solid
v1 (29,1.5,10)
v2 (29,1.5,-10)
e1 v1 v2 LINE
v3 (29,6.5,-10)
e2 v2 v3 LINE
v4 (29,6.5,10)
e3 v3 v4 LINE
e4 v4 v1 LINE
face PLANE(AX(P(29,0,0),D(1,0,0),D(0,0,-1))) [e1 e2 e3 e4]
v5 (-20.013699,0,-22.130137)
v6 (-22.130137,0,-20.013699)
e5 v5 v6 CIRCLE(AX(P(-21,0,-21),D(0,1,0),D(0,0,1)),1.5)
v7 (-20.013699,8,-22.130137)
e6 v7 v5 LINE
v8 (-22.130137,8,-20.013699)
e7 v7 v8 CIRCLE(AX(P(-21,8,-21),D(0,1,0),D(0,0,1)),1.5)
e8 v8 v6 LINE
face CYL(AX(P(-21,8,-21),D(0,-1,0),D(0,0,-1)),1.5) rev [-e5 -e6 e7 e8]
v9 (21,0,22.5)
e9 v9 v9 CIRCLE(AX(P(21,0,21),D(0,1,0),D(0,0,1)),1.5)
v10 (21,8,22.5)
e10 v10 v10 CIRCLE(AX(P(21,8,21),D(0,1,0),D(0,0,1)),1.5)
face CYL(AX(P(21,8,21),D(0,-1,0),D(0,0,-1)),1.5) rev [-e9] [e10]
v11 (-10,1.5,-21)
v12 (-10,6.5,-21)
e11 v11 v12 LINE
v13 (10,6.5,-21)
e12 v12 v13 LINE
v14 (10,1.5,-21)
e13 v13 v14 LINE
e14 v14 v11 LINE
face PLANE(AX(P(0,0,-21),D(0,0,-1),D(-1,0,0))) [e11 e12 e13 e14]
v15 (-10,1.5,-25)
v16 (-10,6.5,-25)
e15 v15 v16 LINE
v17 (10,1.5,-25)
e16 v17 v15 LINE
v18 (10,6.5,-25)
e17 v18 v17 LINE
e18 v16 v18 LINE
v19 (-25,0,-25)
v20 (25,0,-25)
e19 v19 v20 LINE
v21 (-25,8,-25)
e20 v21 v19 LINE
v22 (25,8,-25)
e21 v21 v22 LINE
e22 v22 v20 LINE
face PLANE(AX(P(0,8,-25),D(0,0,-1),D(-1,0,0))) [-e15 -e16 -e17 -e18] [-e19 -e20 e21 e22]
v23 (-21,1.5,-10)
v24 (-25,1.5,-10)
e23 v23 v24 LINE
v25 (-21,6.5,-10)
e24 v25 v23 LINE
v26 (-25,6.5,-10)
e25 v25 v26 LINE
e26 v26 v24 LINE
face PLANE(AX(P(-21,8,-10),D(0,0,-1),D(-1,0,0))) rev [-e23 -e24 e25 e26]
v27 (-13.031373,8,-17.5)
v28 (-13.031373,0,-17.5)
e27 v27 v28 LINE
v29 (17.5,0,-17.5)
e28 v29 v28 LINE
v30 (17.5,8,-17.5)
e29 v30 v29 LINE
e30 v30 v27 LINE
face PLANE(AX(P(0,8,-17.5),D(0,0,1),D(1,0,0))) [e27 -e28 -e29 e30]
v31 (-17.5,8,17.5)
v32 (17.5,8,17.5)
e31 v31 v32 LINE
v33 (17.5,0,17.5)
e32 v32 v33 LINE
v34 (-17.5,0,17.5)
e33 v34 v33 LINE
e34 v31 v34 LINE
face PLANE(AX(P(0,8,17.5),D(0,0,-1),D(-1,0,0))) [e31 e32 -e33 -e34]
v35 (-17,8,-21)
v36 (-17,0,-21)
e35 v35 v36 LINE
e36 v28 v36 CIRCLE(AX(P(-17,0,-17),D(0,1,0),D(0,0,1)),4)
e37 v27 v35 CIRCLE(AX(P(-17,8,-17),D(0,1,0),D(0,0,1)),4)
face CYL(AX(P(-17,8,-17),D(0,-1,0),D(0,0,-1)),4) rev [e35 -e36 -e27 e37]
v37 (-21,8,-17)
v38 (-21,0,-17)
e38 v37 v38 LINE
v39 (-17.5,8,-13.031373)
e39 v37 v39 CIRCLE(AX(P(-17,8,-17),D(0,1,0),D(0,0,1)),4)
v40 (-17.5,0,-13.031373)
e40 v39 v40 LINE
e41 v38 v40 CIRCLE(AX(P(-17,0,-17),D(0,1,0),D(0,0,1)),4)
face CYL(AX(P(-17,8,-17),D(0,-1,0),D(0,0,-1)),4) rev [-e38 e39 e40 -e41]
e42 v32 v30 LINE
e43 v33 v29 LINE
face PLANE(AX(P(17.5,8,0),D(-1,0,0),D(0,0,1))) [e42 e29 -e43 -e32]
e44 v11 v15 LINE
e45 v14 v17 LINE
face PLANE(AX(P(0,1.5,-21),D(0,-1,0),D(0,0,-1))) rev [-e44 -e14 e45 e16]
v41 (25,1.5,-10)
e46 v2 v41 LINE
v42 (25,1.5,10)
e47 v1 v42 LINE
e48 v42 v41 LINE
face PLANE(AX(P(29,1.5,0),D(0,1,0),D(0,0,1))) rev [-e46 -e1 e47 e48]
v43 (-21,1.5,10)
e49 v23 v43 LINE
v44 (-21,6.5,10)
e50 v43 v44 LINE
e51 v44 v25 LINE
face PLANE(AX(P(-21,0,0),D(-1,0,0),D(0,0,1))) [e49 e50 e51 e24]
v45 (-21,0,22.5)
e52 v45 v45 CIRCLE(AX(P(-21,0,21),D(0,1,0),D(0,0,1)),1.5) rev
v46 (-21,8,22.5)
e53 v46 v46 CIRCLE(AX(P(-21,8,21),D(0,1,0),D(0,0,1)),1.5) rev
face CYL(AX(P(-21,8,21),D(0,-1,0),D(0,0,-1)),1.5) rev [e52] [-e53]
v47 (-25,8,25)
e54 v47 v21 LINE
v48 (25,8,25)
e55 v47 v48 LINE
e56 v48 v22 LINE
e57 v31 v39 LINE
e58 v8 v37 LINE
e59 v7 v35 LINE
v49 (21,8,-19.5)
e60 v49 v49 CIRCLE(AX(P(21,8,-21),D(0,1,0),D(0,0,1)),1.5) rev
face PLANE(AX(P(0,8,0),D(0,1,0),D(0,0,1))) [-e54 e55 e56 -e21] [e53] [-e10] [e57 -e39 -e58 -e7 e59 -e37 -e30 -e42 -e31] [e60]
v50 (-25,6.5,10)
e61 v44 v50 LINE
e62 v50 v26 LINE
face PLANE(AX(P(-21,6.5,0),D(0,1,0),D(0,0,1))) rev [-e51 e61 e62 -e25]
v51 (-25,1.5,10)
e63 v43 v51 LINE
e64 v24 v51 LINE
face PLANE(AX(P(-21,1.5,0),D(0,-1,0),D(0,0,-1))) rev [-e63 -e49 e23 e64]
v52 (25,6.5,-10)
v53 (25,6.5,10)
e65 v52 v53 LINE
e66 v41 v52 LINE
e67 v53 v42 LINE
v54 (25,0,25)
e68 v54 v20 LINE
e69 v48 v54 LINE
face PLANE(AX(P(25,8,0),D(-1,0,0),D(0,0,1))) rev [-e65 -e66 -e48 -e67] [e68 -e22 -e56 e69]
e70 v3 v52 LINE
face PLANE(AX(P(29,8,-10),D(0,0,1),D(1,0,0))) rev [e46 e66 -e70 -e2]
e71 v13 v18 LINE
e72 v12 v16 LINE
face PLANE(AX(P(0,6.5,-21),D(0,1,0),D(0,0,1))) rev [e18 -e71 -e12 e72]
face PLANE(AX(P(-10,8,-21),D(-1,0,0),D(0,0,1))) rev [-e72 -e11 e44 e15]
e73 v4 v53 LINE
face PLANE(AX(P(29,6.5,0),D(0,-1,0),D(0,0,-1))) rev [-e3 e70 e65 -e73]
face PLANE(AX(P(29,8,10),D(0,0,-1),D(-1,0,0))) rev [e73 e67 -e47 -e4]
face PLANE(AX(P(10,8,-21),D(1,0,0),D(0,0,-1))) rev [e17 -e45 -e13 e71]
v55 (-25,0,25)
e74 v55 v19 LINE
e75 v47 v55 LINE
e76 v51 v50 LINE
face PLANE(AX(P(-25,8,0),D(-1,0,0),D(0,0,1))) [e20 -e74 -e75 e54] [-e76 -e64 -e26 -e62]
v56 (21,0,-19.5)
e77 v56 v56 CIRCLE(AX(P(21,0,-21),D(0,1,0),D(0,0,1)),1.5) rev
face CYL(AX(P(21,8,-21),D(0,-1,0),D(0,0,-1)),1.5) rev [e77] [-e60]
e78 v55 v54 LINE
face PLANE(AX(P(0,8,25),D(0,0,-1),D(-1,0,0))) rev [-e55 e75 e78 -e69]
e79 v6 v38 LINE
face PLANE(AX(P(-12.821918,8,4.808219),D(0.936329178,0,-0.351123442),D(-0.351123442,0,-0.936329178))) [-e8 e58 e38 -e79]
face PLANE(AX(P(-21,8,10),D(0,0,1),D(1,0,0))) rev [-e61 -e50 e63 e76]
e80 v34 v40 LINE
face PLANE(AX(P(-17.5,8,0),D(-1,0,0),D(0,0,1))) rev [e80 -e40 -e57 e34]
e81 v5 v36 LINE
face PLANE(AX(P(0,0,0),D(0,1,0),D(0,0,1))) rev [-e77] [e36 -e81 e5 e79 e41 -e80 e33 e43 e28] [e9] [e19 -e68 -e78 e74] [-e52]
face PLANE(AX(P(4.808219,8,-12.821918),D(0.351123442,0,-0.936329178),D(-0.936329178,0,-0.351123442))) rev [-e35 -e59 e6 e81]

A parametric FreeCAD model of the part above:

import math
import FreeCAD as App
import Part
import Sketcher


def add_polygon(sketch, points):
    """Adds a closed chain of lines whose ends are joined by coincident constraints."""
    first, n = sketch.GeometryCount, len(points)
    for a, b in zip(points, points[1:] + points[:1]):
        sketch.addGeometry(Part.LineSegment(App.Vector(*a, 0), App.Vector(*b, 0)), False)
    for i in range(n):
        sketch.addConstraint(Sketcher.Constraint("Coincident", first + i, 2, first + (i + 1) % n, 1))

doc = App.newDocument("Part")
params = doc.addObject("Spreadsheet::Sheet", "Params")
for row, (alias, value) in enumerate([
    ("sketch1_diameter", "3 mm"),
    ("sketch1_radius", "4 mm"),
    ("sketch1_width", "50 mm"),
    ("sketch1_width2", "35 mm"),
    ("pad1_length", "8 mm"),
    ("sketch2_width", "20 mm"),
    ("sketch2_height", "5 mm"),
    ("pocket1_length", "4 mm"),
    ("sketch3_width", "5 mm"),
    ("sketch3_height", "20 mm"),
    ("pocket2_length", "4 mm"),
    ("sketch4_width", "5 mm"),
    ("sketch4_height", "20 mm"),
    ("pad2_length", "4 mm"),
], start=1):
    params.set(f"A{row}", alias)
    params.set(f"B{row}", "=" + value)
    params.setAlias(f"B{row}", alias)

body = doc.addObject("PartDesign::Body", "Body")

sketch1 = doc.addObject("Sketcher::SketchObject", "Sketch")
body.addObject(sketch1)
sketch1.AttachmentSupport = (doc.XZ_Plane, [""])
sketch1.MapMode = "FlatFace"
add_polygon(sketch1, [(-25, -25), (-25, 25), (25, 25), (25, -25)])
sketch1.addGeometry(Part.Circle(App.Vector(-21, 21, 0), App.Vector(0, 0, 1), 1.5), False)
sketch1.addGeometry(Part.Circle(App.Vector(21, 21, 0), App.Vector(0, 0, 1), 1.5), False)
sketch1.addGeometry(Part.ArcOfCircle(Part.Circle(App.Vector(-17, -17, 0), App.Vector(0, 0, 1), 4), math.radians(-90), math.radians(-7)), False)
sketch1.addGeometry(Part.LineSegment(App.Vector(-13, -17.5, 0), App.Vector(17.5, -17.5, 0)), False)
sketch1.addGeometry(Part.LineSegment(App.Vector(17.5, -17.5, 0), App.Vector(17.5, 17.5, 0)), False)
sketch1.addGeometry(Part.LineSegment(App.Vector(17.5, 17.5, 0), App.Vector(-17.5, 17.5, 0)), False)
sketch1.addGeometry(Part.LineSegment(App.Vector(-17.5, 17.5, 0), App.Vector(-17.5, -13, 0)), False)
sketch1.addGeometry(Part.ArcOfCircle(Part.Circle(App.Vector(-17, -17, 0), App.Vector(0, 0, 1), 4), math.radians(97), math.radians(180)), False)
sketch1.addGeometry(Part.LineSegment(App.Vector(-21, -17, 0), App.Vector(-22.1, -20, 0)), False)
sketch1.addGeometry(Part.ArcOfCircle(Part.Circle(App.Vector(-21, -21, 0), App.Vector(0, 0, 1), 1.5), math.radians(139), math.radians(311)), False)
sketch1.addGeometry(Part.LineSegment(App.Vector(-20, -22.1, 0), App.Vector(-17, -21, 0)), False)
sketch1.addGeometry(Part.Circle(App.Vector(21, -21, 0), App.Vector(0, 0, 1), 1.5), False)
sketch1.addConstraint(Sketcher.Constraint("Coincident", 6, 2, 7, 1))
sketch1.addConstraint(Sketcher.Constraint("Coincident", 7, 2, 8, 1))
sketch1.addConstraint(Sketcher.Constraint("Coincident", 8, 2, 9, 1))
sketch1.addConstraint(Sketcher.Constraint("Coincident", 9, 2, 10, 1))
sketch1.addConstraint(Sketcher.Constraint("Coincident", 10, 2, 11, 1))
sketch1.addConstraint(Sketcher.Constraint("Coincident", 11, 2, 12, 1))
sketch1.addConstraint(Sketcher.Constraint("Coincident", 12, 2, 13, 1))
sketch1.addConstraint(Sketcher.Constraint("Coincident", 13, 2, 14, 1))
sketch1.addConstraint(Sketcher.Constraint("Coincident", 14, 2, 6, 1))
sketch1.addConstraint(Sketcher.Constraint("Vertical", 0))
sketch1.addConstraint(Sketcher.Constraint("Horizontal", 1))
sketch1.addConstraint(Sketcher.Constraint("Vertical", 2))
sketch1.addConstraint(Sketcher.Constraint("Horizontal", 3))
sketch1.addConstraint(Sketcher.Constraint("Horizontal", 7))
sketch1.addConstraint(Sketcher.Constraint("Vertical", 8))
sketch1.addConstraint(Sketcher.Constraint("Horizontal", 9))
sketch1.addConstraint(Sketcher.Constraint("Vertical", 10))
sketch1.addConstraint(Sketcher.Constraint("Coincident", 11, 3, 6, 3))
sketch1.addConstraint(Sketcher.Constraint("Equal", 4, 5))
sketch1.addConstraint(Sketcher.Constraint("Equal", 6, 11))
sketch1.addConstraint(Sketcher.Constraint("Equal", 5, 13))
sketch1.addConstraint(Sketcher.Constraint("Equal", 13, 15))
sketch1.addConstraint(Sketcher.Constraint("Symmetric", 5, 3, 13, 3, -1, 1))
sketch1.addConstraint(Sketcher.Constraint("Symmetric", 4, 3, 15, 3, -1, 1))
sketch1.addConstraint(Sketcher.Constraint("Symmetric", 0, 2, 2, 2, -1, 1))
sketch1.addConstraint(Sketcher.Constraint("Symmetric", 7, 2, 9, 2, -1, 1))
sketch1.addConstraint(Sketcher.Constraint("Symmetric", 4, 3, 5, 3, -2))
sketch1.addConstraint(Sketcher.Constraint("Horizontal", 6, 3, 11, 2))
sketch1.addConstraint(Sketcher.Constraint("Horizontal", 15, 3, 14, 2))
sketch1.addConstraint(Sketcher.Constraint("Vertical", 13, 3, 11, 2))
sketch1.addConstraint(Sketcher.Constraint("Vertical", 11, 3, 14, 2))
sketch1.addConstraint(Sketcher.Constraint("Equal", 3, 0))
sketch1.addConstraint(Sketcher.Constraint("Equal", 9, 8))
sketch1.addConstraint(Sketcher.Constraint("Equal", 7, 10))
sketch1.addConstraint(Sketcher.Constraint("Equal", 12, 14))
sketch1.addConstraint(Sketcher.Constraint("Diameter", 4, 3.0))
sketch1.addConstraint(Sketcher.Constraint("Radius", 6, 4.0))
sketch1.addConstraint(Sketcher.Constraint("DistanceX", 1, 1, 1, 2, 50.0))
sketch1.addConstraint(Sketcher.Constraint("DistanceX", 9, 2, 9, 1, 35.0))
sketch1.addConstraint(Sketcher.Constraint("DistanceX", 4, 3, -1, 1, 21.0))
sketch1.addConstraint(Sketcher.Constraint("DistanceY", 12, 2, -1, 1, 20.013699))
sketch1.setExpression("Constraints[39]", "Params.sketch1_diameter")
sketch1.setExpression("Constraints[40]", "Params.sketch1_radius")
sketch1.setExpression("Constraints[41]", "Params.sketch1_width")
sketch1.setExpression("Constraints[42]", "Params.sketch1_width2")
pad1 = doc.addObject("PartDesign::Pad", "Pad")
body.addObject(pad1)
pad1.Profile = sketch1
pad1.setExpression("Length", "Params.pad1_length")
pad1.Reversed = True

sketch2 = doc.addObject("Sketcher::SketchObject", "Sketch001")
body.addObject(sketch2)
sketch2.AttachmentSupport = (doc.XY_Plane, [""])
sketch2.MapMode = "FlatFace"
sketch2.AttachmentOffset = App.Placement(App.Vector(0, 0, -25), App.Rotation())
add_polygon(sketch2, [(-10, 6), (-10, 2), (10, 2), (10, 6)])
sketch2.addConstraint(Sketcher.Constraint("Vertical", 0))
sketch2.addConstraint(Sketcher.Constraint("Horizontal", 1))
sketch2.addConstraint(Sketcher.Constraint("Vertical", 2))
sketch2.addConstraint(Sketcher.Constraint("Horizontal", 3))
sketch2.addConstraint(Sketcher.Constraint("DistanceX", 1, 1, 1, 2, 20.0))
sketch2.addConstraint(Sketcher.Constraint("DistanceY", 0, 2, 0, 1, 5.0))
sketch2.addConstraint(Sketcher.Constraint("DistanceX", 0, 2, -1, 1, 10.0))
sketch2.addConstraint(Sketcher.Constraint("DistanceY", -1, 1, 0, 2, 1.5))
sketch2.setExpression("Constraints[8]", "Params.sketch2_width")
sketch2.setExpression("Constraints[9]", "Params.sketch2_height")
pocket1 = doc.addObject("PartDesign::Pocket", "Pocket")
body.addObject(pocket1)
pocket1.Profile = sketch2
pocket1.setExpression("Length", "Params.pocket1_length")
pocket1.Reversed = True

sketch3 = doc.addObject("Sketcher::SketchObject", "Sketch002")
body.addObject(sketch3)
sketch3.AttachmentSupport = (doc.YZ_Plane, [""])
sketch3.MapMode = "FlatFace"
sketch3.AttachmentOffset = App.Placement(App.Vector(0, 0, -25), App.Rotation())
add_polygon(sketch3, [(6, 10), (2, 10), (2, -10), (6, -10)])
sketch3.addConstraint(Sketcher.Constraint("Horizontal", 0))
sketch3.addConstraint(Sketcher.Constraint("Vertical", 1))
sketch3.addConstraint(Sketcher.Constraint("Horizontal", 2))
sketch3.addConstraint(Sketcher.Constraint("Vertical", 3))
sketch3.addConstraint(Sketcher.Constraint("DistanceX", 0, 2, 0, 1, 5.0))
sketch3.addConstraint(Sketcher.Constraint("DistanceY", 1, 2, 1, 1, 20.0))
sketch3.addConstraint(Sketcher.Constraint("DistanceY", -1, 1, 0, 2, 10.0))
sketch3.addConstraint(Sketcher.Constraint("DistanceX", -1, 1, 0, 2, 1.5))
sketch3.setExpression("Constraints[8]", "Params.sketch3_width")
sketch3.setExpression("Constraints[9]", "Params.sketch3_height")
pocket2 = doc.addObject("PartDesign::Pocket", "Pocket001")
body.addObject(pocket2)
pocket2.Profile = sketch3
pocket2.setExpression("Length", "Params.pocket2_length")
pocket2.Reversed = True

sketch4 = doc.addObject("Sketcher::SketchObject", "Sketch003")
body.addObject(sketch4)
sketch4.AttachmentSupport = (doc.YZ_Plane, [""])
sketch4.MapMode = "FlatFace"
sketch4.AttachmentOffset = App.Placement(App.Vector(0, 0, 25), App.Rotation())
add_polygon(sketch4, [(6, 10), (2, 10), (2, -10), (6, -10)])
sketch4.addConstraint(Sketcher.Constraint("Horizontal", 0))
sketch4.addConstraint(Sketcher.Constraint("Vertical", 1))
sketch4.addConstraint(Sketcher.Constraint("Horizontal", 2))
sketch4.addConstraint(Sketcher.Constraint("Vertical", 3))
sketch4.addConstraint(Sketcher.Constraint("DistanceX", 0, 2, 0, 1, 5.0))
sketch4.addConstraint(Sketcher.Constraint("DistanceY", 1, 2, 1, 1, 20.0))
sketch4.addConstraint(Sketcher.Constraint("DistanceY", -1, 1, 0, 2, 10.0))
sketch4.addConstraint(Sketcher.Constraint("DistanceX", -1, 1, 0, 2, 1.5))
sketch4.setExpression("Constraints[8]", "Params.sketch4_width")
sketch4.setExpression("Constraints[9]", "Params.sketch4_height")
pad2 = doc.addObject("PartDesign::Pad", "Pad001")
body.addObject(pad2)
pad2.Profile = sketch4
pad2.setExpression("Length", "Params.pad2_length")

doc.recompute()
